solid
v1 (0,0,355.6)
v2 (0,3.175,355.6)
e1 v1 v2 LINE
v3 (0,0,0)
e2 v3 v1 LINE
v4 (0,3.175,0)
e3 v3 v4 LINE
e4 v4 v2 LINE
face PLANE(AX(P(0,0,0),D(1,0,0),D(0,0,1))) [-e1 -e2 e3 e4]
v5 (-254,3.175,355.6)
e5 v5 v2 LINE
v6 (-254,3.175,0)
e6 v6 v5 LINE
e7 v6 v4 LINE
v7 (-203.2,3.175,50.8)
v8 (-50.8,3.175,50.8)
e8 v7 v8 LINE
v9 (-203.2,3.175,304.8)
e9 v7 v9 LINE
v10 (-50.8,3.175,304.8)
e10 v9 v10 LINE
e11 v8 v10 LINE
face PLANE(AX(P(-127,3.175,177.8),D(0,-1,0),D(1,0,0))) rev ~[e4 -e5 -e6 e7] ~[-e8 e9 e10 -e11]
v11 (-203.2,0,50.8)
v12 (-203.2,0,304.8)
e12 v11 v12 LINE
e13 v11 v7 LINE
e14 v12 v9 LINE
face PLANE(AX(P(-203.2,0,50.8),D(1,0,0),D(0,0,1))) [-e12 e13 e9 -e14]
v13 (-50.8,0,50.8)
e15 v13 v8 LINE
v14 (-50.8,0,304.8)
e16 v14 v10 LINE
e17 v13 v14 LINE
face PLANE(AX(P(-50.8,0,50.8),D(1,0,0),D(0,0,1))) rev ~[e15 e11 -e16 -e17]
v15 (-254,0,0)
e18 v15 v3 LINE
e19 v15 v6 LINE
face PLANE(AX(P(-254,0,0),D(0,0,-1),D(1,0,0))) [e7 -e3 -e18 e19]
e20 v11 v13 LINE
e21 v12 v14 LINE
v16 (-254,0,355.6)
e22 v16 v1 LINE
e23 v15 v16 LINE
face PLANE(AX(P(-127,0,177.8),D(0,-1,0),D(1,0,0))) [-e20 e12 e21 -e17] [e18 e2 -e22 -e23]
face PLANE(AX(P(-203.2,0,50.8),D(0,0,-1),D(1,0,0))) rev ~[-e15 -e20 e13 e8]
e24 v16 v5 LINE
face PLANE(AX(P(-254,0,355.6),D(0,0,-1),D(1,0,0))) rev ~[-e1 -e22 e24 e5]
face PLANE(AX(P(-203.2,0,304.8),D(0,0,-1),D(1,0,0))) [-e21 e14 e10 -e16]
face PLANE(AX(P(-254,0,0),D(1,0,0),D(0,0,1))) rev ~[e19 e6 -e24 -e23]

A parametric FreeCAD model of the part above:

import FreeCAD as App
import Part
import Sketcher
Q = App.Units.Quantity


def add_polygon(sketch, points):
    """Adds a closed chain of lines whose ends are joined by coincident constraints."""
    first, n = sketch.GeometryCount, len(points)
    for a, b in zip(points, points[1:] + points[:1]):
        sketch.addGeometry(Part.LineSegment(App.Vector(*a, 0), App.Vector(*b, 0)), False)
    for i in range(n):
        sketch.addConstraint(Sketcher.Constraint("Coincident", first + i, 2, first + (i + 1) % n, 1))

doc = App.newDocument("Part")
params = doc.addObject("Spreadsheet::Sheet", "Params")
for row, (alias, value) in enumerate([
    ("sketch1_width", "10 in"),
    ("sketch1_width2", "6 in"),
    ("sketch1_height", "14 in"),
    ("pad1_length", "0.125 in"),
], start=1):
    params.set(f"A{row}", alias)
    params.set(f"B{row}", "=" + value)
    params.setAlias(f"B{row}", alias)

body = doc.addObject("PartDesign::Body", "Body")

# Sketch on XZ plane
sketch1 = body.newObject("Sketcher::SketchObject", "Sketch")
sketch1.AttachmentSupport = (doc.getObject("XZ_Plane"), [""])
sketch1.MapMode = "FlatFace"
add_polygon(sketch1, [(-254, 356), (-254, 0), (0, 0), (0, 356)])  # lines 0-3
add_polygon(sketch1, [(-51, 51), (-203, 51), (-203, 305), (-51, 305)])  # lines 4-7
sketch1.addConstraint([
    Sketcher.Constraint("Vertical", 0),
    Sketcher.Constraint("Horizontal", 1),
    Sketcher.Constraint("Vertical", 2),
    Sketcher.Constraint("Horizontal", 3),
    Sketcher.Constraint("Horizontal", 4),
    Sketcher.Constraint("Vertical", 5),
    Sketcher.Constraint("Horizontal", 6),
    Sketcher.Constraint("Vertical", 7),
    Sketcher.Constraint("Coincident", 1, 2, -1, 1),
    Sketcher.Constraint("Equal", 3, 5),
    Sketcher.Constraint("DistanceX", 1, 1, 1, 2, Q("10 in")),
    Sketcher.Constraint("DistanceX", 4, 2, 4, 1, Q("6 in")),
    Sketcher.Constraint("DistanceY", 0, 2, 0, 1, Q("14 in")),
    Sketcher.Constraint("DistanceX", 4, 2, -1, 1, Q("8 in")),
    Sketcher.Constraint("DistanceY", -1, 1, 4, 2, Q("2 in")),
])
sketch1.setExpression("Constraints[18]", "Params.sketch1_width")
sketch1.setExpression("Constraints[19]", "Params.sketch1_width2")
sketch1.setExpression("Constraints[20]", "Params.sketch1_height")
pad1 = body.newObject("PartDesign::Pad", "Pad")
pad1.Profile = sketch1
pad1.setExpression("Length", "Params.pad1_length")
pad1.Reversed = True

doc.recompute()
